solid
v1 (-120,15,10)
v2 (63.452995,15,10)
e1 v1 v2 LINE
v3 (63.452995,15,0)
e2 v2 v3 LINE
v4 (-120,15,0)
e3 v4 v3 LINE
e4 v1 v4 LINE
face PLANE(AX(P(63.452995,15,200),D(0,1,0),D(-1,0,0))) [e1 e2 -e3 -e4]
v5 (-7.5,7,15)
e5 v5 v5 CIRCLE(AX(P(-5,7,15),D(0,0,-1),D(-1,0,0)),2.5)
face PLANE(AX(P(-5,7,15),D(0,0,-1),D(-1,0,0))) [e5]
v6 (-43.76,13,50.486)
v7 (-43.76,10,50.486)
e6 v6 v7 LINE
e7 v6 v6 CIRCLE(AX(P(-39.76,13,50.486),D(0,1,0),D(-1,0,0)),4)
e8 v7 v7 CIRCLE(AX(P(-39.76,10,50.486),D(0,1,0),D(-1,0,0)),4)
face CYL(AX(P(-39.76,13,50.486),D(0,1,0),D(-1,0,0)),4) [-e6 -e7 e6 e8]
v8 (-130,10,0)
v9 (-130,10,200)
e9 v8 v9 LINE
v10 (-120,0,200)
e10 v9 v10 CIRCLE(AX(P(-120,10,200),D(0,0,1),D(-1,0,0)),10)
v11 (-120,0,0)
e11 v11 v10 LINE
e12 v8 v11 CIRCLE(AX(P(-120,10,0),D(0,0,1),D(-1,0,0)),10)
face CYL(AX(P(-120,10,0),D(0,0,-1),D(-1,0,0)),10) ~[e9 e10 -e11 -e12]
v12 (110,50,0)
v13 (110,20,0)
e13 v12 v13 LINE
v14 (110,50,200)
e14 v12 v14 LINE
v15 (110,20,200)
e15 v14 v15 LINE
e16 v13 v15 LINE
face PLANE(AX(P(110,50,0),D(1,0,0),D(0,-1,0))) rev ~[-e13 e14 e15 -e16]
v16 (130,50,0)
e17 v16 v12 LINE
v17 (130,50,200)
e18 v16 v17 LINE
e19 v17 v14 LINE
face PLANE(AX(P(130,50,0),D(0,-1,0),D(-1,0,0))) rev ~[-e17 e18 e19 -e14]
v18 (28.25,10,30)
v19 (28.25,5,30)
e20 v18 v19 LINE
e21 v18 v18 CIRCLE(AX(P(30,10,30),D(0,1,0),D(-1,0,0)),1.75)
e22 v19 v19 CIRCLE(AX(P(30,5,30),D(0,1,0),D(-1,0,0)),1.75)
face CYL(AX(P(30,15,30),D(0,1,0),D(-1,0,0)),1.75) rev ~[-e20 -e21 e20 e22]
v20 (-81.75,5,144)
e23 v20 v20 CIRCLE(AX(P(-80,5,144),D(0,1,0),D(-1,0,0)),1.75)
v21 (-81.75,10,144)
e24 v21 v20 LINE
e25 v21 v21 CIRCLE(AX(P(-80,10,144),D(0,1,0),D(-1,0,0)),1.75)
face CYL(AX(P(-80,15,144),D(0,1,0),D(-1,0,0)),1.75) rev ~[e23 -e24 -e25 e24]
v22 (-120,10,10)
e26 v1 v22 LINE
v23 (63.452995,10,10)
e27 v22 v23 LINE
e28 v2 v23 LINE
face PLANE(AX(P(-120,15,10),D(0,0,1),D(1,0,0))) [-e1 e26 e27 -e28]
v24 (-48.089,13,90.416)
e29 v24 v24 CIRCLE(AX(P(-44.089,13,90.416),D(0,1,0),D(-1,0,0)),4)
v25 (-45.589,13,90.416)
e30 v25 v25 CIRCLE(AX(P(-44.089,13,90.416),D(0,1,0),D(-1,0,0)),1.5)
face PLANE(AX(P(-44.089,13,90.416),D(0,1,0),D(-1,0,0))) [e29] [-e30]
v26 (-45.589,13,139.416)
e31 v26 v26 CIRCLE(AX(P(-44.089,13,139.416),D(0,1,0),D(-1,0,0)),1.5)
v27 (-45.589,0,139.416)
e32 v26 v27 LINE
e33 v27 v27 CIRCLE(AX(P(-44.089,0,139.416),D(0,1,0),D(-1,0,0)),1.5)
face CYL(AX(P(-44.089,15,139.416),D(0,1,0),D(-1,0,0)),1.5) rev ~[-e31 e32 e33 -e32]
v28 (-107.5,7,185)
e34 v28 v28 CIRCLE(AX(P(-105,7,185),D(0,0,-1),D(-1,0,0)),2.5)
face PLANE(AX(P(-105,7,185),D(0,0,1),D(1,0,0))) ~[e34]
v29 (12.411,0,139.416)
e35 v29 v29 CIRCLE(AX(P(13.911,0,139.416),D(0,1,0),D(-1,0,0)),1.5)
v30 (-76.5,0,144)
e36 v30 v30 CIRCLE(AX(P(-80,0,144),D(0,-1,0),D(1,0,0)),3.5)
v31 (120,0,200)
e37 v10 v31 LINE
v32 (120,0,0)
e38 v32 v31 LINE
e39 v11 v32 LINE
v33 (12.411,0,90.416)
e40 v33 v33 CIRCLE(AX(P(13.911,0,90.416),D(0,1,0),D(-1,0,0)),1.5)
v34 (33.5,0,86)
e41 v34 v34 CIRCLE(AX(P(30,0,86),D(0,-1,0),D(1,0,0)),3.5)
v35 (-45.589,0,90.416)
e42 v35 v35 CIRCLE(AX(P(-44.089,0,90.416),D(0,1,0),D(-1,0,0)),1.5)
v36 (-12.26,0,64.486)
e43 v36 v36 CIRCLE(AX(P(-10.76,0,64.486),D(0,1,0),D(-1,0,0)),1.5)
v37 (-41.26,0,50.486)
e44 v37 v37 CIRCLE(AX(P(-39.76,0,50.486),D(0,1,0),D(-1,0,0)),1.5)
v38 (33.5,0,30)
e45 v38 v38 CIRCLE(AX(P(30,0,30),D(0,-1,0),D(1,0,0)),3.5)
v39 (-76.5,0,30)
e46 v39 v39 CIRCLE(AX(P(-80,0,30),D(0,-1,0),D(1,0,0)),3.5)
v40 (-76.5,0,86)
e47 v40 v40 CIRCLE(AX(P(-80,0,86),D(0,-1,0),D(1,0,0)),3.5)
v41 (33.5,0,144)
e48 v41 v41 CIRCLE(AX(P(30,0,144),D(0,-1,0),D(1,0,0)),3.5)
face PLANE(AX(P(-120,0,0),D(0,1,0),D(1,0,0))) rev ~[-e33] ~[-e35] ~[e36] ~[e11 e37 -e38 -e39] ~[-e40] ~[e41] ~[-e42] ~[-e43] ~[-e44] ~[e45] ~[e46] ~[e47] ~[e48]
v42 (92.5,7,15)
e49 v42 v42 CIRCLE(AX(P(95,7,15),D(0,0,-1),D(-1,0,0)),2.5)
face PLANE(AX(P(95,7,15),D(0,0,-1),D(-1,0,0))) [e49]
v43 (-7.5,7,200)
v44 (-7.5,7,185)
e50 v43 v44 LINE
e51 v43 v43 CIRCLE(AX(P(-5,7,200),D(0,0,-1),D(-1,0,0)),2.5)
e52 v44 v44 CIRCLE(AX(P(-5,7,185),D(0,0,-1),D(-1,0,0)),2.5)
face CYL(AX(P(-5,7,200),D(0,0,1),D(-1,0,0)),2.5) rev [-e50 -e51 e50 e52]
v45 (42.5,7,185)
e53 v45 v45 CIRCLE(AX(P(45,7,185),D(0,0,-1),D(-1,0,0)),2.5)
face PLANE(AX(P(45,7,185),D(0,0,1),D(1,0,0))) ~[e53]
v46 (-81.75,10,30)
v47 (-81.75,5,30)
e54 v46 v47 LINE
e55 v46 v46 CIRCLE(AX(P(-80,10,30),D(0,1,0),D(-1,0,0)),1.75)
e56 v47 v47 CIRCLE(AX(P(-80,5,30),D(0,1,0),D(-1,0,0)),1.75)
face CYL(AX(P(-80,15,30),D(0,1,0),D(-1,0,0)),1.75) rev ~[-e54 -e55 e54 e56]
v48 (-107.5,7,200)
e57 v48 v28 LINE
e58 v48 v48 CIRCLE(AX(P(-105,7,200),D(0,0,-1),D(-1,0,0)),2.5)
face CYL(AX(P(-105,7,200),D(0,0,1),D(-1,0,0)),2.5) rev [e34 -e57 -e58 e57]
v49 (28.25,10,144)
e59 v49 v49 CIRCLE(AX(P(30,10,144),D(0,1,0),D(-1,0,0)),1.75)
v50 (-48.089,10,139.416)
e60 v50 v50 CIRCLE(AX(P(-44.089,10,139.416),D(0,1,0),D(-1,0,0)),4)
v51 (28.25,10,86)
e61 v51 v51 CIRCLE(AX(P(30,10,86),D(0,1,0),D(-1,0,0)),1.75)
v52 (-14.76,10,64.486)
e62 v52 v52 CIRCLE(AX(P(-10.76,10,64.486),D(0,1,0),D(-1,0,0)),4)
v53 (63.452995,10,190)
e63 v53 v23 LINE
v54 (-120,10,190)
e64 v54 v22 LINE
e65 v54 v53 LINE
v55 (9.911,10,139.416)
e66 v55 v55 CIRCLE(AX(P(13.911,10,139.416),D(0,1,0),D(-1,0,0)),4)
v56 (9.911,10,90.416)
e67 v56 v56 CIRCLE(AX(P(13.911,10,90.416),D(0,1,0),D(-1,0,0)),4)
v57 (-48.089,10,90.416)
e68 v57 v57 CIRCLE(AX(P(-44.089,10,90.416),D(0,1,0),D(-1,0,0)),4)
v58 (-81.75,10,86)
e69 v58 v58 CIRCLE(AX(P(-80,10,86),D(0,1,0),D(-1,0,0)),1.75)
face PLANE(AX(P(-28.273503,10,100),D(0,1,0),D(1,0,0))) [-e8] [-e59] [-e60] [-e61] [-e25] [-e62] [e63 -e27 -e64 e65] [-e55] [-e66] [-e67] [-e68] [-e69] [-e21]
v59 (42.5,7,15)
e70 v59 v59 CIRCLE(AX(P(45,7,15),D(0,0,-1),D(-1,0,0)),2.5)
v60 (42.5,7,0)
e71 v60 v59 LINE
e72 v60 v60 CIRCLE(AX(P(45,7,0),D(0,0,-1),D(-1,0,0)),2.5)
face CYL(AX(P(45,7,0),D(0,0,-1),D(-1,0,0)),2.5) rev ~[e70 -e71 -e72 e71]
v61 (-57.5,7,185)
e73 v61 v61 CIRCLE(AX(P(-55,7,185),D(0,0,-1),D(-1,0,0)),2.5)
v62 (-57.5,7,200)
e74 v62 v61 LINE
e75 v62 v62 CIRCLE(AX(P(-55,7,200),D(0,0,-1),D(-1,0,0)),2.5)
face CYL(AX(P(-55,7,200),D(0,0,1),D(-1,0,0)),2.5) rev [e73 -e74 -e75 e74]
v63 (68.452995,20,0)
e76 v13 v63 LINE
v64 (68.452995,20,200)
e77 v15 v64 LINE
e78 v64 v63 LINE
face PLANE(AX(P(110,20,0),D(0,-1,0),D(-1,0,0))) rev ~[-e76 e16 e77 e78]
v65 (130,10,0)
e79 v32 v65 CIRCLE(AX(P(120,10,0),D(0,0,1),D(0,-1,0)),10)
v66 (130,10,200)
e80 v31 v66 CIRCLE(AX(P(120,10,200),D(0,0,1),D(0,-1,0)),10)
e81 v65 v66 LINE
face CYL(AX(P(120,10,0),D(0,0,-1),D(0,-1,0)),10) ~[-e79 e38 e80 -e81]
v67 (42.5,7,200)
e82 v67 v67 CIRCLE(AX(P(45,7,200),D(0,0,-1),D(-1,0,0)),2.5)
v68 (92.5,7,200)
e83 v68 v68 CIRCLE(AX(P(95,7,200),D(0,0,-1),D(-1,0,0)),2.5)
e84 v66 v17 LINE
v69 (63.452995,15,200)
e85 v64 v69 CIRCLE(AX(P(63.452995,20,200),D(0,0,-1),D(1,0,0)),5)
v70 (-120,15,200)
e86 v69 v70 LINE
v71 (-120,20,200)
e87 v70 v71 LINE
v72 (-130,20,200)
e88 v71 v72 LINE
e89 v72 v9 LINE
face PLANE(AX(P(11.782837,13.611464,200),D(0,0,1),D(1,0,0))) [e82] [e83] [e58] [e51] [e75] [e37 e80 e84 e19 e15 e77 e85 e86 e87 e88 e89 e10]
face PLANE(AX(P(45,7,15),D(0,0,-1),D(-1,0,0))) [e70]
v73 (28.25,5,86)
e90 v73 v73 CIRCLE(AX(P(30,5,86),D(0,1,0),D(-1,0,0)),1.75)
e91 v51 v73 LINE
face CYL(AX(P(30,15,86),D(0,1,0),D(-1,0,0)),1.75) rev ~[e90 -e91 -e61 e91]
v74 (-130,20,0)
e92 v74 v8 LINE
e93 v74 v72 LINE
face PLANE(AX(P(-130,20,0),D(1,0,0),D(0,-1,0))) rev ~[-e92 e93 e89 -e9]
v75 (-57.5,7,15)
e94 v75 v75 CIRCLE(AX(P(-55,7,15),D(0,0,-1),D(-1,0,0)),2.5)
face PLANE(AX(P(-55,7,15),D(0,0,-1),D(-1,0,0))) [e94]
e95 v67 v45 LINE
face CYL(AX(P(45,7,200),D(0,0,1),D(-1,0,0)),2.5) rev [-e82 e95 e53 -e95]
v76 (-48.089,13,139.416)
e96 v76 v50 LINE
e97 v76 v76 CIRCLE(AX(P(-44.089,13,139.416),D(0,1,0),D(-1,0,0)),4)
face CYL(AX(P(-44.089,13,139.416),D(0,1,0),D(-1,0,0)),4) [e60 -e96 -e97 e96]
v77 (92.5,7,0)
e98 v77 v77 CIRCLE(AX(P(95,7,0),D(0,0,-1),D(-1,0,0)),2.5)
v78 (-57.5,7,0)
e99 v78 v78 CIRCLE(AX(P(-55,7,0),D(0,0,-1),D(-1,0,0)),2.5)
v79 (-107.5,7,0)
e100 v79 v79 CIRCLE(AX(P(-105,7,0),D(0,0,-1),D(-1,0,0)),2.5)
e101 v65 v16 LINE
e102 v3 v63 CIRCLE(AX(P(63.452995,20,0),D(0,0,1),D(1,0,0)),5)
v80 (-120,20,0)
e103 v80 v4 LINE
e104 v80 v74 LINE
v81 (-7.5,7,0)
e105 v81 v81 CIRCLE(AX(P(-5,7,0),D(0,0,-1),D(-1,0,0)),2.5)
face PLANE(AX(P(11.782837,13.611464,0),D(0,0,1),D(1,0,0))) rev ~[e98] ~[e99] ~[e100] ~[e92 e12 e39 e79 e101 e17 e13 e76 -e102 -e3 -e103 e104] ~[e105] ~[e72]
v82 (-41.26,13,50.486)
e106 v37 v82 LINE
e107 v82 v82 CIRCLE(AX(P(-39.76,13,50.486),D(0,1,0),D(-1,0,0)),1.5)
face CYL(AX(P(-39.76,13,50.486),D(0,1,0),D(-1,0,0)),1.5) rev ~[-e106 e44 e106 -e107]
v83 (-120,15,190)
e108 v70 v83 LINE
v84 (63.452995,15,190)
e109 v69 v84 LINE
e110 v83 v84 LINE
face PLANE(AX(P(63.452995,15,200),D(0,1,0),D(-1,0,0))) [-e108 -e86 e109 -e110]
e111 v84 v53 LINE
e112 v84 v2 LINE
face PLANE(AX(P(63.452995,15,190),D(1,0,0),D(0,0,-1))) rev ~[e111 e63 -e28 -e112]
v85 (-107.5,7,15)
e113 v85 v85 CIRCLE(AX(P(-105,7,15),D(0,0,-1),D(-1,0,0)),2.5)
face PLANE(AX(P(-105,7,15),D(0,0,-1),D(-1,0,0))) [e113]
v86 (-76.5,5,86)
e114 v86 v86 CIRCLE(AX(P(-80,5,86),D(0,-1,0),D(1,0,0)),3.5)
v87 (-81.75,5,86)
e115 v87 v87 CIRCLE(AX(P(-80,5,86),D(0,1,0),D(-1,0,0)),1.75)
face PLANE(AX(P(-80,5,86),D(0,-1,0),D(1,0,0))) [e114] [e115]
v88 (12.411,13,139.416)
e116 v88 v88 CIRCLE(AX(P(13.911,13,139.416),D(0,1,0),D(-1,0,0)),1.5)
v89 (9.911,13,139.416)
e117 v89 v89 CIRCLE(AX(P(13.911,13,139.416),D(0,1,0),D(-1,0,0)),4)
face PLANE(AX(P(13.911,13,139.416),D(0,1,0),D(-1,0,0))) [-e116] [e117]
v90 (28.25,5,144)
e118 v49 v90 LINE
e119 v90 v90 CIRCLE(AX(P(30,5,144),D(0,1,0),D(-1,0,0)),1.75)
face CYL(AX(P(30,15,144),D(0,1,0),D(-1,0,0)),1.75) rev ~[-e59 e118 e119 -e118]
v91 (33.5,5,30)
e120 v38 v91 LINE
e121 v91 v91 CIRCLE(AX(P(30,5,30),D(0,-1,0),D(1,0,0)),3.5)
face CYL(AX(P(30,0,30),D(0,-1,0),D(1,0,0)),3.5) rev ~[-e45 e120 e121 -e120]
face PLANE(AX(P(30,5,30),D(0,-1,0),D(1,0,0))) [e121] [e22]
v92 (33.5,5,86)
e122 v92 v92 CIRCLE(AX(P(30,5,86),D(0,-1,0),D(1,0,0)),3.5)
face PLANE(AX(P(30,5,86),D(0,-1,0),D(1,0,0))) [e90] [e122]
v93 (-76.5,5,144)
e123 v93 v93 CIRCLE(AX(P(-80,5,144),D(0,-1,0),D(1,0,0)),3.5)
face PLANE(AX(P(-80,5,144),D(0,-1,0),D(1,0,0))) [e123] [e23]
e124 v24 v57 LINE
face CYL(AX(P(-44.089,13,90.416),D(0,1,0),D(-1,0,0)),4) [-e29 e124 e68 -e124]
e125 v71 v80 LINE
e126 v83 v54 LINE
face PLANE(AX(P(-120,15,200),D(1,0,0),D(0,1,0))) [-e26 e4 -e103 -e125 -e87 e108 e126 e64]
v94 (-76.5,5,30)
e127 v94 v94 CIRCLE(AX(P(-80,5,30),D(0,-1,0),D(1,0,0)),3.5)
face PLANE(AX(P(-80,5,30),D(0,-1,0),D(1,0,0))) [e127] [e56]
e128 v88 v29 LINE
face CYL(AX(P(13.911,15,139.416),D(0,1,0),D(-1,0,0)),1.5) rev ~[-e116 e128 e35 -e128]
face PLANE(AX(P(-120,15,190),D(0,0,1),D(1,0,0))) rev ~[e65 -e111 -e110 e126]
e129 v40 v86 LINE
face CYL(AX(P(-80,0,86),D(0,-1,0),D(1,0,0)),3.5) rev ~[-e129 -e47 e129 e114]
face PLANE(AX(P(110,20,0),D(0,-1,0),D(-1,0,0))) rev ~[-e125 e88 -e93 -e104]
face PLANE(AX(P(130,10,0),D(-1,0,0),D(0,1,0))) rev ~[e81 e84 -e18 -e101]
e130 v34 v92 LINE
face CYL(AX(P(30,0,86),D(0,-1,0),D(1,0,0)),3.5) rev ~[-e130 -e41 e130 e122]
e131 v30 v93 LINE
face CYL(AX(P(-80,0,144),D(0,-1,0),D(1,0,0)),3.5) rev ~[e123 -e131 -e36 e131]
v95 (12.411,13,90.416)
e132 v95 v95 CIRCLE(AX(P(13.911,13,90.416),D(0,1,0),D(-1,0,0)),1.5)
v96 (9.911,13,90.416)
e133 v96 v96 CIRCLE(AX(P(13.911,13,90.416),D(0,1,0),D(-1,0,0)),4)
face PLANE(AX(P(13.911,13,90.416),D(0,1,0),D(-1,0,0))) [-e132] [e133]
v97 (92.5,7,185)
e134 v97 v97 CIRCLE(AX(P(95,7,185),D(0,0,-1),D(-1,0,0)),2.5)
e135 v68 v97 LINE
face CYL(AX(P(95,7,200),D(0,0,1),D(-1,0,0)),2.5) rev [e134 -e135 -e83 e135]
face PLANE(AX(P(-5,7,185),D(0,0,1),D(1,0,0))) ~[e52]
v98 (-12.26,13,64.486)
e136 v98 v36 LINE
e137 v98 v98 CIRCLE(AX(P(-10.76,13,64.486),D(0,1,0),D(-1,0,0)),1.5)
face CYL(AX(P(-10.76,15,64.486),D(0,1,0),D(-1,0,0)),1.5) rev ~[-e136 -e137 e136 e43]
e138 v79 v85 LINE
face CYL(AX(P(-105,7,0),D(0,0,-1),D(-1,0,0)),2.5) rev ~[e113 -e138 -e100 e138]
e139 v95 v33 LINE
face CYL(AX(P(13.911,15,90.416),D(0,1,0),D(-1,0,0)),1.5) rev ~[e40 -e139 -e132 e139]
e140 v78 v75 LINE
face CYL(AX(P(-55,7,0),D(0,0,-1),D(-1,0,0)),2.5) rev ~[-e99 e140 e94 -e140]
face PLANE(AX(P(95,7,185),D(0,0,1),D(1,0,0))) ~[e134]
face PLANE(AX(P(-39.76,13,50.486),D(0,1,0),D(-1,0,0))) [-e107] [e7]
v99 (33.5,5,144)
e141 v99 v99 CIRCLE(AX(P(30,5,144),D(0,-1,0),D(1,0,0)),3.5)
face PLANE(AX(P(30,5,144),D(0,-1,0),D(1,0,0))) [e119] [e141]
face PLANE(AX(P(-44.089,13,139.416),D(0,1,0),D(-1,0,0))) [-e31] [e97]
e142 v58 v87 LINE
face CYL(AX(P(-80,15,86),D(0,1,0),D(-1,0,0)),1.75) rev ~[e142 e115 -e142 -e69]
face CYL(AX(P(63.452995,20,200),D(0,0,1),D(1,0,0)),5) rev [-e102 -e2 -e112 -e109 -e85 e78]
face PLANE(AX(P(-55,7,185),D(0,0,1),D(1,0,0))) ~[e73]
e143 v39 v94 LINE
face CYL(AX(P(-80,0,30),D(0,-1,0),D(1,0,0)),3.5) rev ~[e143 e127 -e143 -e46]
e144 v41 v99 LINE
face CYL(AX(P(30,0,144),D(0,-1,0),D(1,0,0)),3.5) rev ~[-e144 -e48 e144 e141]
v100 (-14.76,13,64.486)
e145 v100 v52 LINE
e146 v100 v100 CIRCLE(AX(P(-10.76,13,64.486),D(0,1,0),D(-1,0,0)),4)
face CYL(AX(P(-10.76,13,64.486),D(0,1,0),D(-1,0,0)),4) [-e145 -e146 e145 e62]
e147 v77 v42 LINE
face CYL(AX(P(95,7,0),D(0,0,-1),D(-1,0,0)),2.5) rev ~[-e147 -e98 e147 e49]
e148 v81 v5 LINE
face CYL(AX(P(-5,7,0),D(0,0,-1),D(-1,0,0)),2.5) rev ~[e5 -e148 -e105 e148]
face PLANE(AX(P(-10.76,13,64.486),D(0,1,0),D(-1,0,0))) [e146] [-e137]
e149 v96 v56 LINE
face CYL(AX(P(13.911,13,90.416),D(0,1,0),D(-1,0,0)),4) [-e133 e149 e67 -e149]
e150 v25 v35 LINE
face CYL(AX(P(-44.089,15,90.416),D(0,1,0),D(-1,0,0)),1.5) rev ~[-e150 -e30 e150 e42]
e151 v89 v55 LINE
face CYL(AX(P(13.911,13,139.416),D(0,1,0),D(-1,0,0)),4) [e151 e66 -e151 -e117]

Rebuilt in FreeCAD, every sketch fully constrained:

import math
import FreeCAD as App
import Part
import Sketcher
from FreeCAD import Vector

doc = App.newDocument("Part")
body = doc.addObject("PartDesign::Body", "Body")

sketch1 = doc.addObject("Sketcher::SketchObject", "Sketch")
body.addObject(sketch1)
sketch1.AttachmentSupport = (doc.XY_Plane, [""])
sketch1.MapMode = "FlatFace"
sketch1.addGeometry(Part.LineSegment(Vector(-120, 0, 0), Vector(120, 0, 0)), False)
sketch1.addGeometry(Part.ArcOfCircle(Part.Circle(Vector(120, 10, 0), Vector(0, 0, 1), 10), math.radians(-90), math.radians(0)), False)
sketch1.addGeometry(Part.LineSegment(Vector(130, 10, 0), Vector(130, 50, 0)), False)
sketch1.addGeometry(Part.LineSegment(Vector(130, 50, 0), Vector(110, 50, 0)), False)
sketch1.addGeometry(Part.LineSegment(Vector(110, 50, 0), Vector(110, 20, 0)), False)
sketch1.addGeometry(Part.LineSegment(Vector(110, 20, 0), Vector(-130, 20, 0)), False)
sketch1.addGeometry(Part.LineSegment(Vector(-130, 20, 0), Vector(-130, 10, 0)), False)
sketch1.addGeometry(Part.ArcOfCircle(Part.Circle(Vector(-120, 10, 0), Vector(0, 0, 1), 10), math.radians(180), math.radians(270)), False)
sketch1.addConstraint(Sketcher.Constraint("Tangent", 0, 2, 1, 1))
sketch1.addConstraint(Sketcher.Constraint("Tangent", 1, 2, 2, 1))
sketch1.addConstraint(Sketcher.Constraint("Coincident", 2, 2, 3, 1))
sketch1.addConstraint(Sketcher.Constraint("Coincident", 3, 2, 4, 1))
sketch1.addConstraint(Sketcher.Constraint("Coincident", 4, 2, 5, 1))
sketch1.addConstraint(Sketcher.Constraint("Coincident", 5, 2, 6, 1))
sketch1.addConstraint(Sketcher.Constraint("Tangent", 6, 2, 7, 1))
sketch1.addConstraint(Sketcher.Constraint("Tangent", 7, 2, 0, 1))
sketch1.addConstraint(Sketcher.Constraint("Horizontal", 0))
sketch1.addConstraint(Sketcher.Constraint("Vertical", 2))
sketch1.addConstraint(Sketcher.Constraint("Horizontal", 3))
sketch1.addConstraint(Sketcher.Constraint("Vertical", 4))
sketch1.addConstraint(Sketcher.Constraint("Horizontal", 5))
sketch1.addConstraint(Sketcher.Constraint("Vertical", 6))
sketch1.addConstraint(Sketcher.Constraint("Equal", 1, 7))
sketch1.addConstraint(Sketcher.Constraint("Symmetric", 0, 2, 7, 2, -1, 1))
sketch1.addConstraint(Sketcher.Constraint("Equal", 0, 5))
sketch1.addConstraint(Sketcher.Constraint("Radius", 1, 10.0))
sketch1.addConstraint(Sketcher.Constraint("DistanceX", 0, 1, 0, 2, 240.0))
sketch1.addConstraint(Sketcher.Constraint("DistanceY", 2, 1, 2, 2, 40.0))
sketch1.addConstraint(Sketcher.Constraint("DistanceY", 4, 2, 4, 1, 30.0))
pad1 = doc.addObject("PartDesign::Pad", "Pad")
body.addObject(pad1)
pad1.Profile = sketch1
pad1.Length = 200

sketch2 = doc.addObject("Sketcher::SketchObject", "Sketch001")
body.addObject(sketch2)
sketch2.AttachmentSupport = (doc.XY_Plane, [""])
sketch2.MapMode = "FlatFace"
sketch2.AttachmentOffset = App.Placement(Vector(0, 0, 200), App.Rotation())
sketch2.addGeometry(Part.LineSegment(Vector(68.452995, 20, 0), Vector(-120, 20, 0)), False)
sketch2.addGeometry(Part.LineSegment(Vector(-120, 20, 0), Vector(-120, 15, 0)), False)
sketch2.addGeometry(Part.LineSegment(Vector(-120, 15, 0), Vector(63.452995, 15, 0)), False)
sketch2.addGeometry(Part.ArcOfCircle(Part.Circle(Vector(63.452995, 20, 0), Vector(0, 0, 1), 5), math.radians(-90), math.radians(0)), False)
sketch2.addConstraint(Sketcher.Constraint("Coincident", 0, 2, 1, 1))
sketch2.addConstraint(Sketcher.Constraint("Coincident", 1, 2, 2, 1))
sketch2.addConstraint(Sketcher.Constraint("Tangent", 2, 2, 3, 1))
sketch2.addConstraint(Sketcher.Constraint("Coincident", 3, 2, 0, 1))
sketch2.addConstraint(Sketcher.Constraint("Horizontal", 0))
sketch2.addConstraint(Sketcher.Constraint("Vertical", 1))
sketch2.addConstraint(Sketcher.Constraint("Horizontal", 2))
sketch2.addConstraint(Sketcher.Constraint("Horizontal", 3, 3, 0, 2))
sketch2.addConstraint(Sketcher.Constraint("Radius", 3, 5.0))
sketch2.addConstraint(Sketcher.Constraint("DistanceY", -1, 1, 3, 3, 20.0))
sketch2.addConstraint(Sketcher.Constraint("DistanceX", 0, 2, -1, 1, 120.0))
sketch2.addConstraint(Sketcher.Constraint("DistanceX", 0, 2, 0, 1, 188.452995))
pocket1 = doc.addObject("PartDesign::Pocket", "Pocket")
body.addObject(pocket1)
pocket1.Profile = sketch2
pocket1.Type = "UpToFirst"

sketch3 = doc.addObject("Sketcher::SketchObject", "Sketch002")
body.addObject(sketch3)
sketch3.AttachmentSupport = (doc.XZ_Plane, [""])
sketch3.MapMode = "FlatFace"
sketch3.AttachmentOffset = App.Placement(Vector(0, 0, -15), App.Rotation())
sketch3.addGeometry(Part.Circle(Vector(30, 30, 0), Vector(0, 0, 1), 1.75), False)
sketch3.addConstraint(Sketcher.Constraint("Diameter", 0, 3.5))
sketch3.addConstraint(Sketcher.Constraint("DistanceX", -1, 1, 0, 3, 30.0))
sketch3.addConstraint(Sketcher.Constraint("DistanceY", -1, 1, 0, 3, 30.0))
pocket2 = doc.addObject("PartDesign::Pocket", "Pocket001")
body.addObject(pocket2)
pocket2.Profile = sketch3
pocket2.Type = "UpToFirst"
pocket2.Reversed = True

sketch4 = doc.addObject("Sketcher::SketchObject", "Sketch003")
body.addObject(sketch4)
sketch4.AttachmentSupport = (doc.XZ_Plane, [""])
sketch4.MapMode = "FlatFace"
sketch4.AttachmentOffset = App.Placement(Vector(0, 0, -15), App.Rotation())
sketch4.addGeometry(Part.Circle(Vector(30, 86, 0), Vector(0, 0, 1), 1.75), False)
sketch4.addConstraint(Sketcher.Constraint("Diameter", 0, 3.5))
sketch4.addConstraint(Sketcher.Constraint("DistanceX", -1, 1, 0, 3, 30.0))
sketch4.addConstraint(Sketcher.Constraint("DistanceY", -1, 1, 0, 3, 86.0))
pocket3 = doc.addObject("PartDesign::Pocket", "Pocket002")
body.addObject(pocket3)
pocket3.Profile = sketch4
pocket3.Type = "UpToFirst"
pocket3.Reversed = True

sketch5 = doc.addObject("Sketcher::SketchObject", "Sketch004")
body.addObject(sketch5)
sketch5.AttachmentSupport = (doc.XZ_Plane, [""])
sketch5.MapMode = "FlatFace"
sketch5.AttachmentOffset = App.Placement(Vector(0, 0, -15), App.Rotation())
sketch5.addGeometry(Part.Circle(Vector(30, 144, 0), Vector(0, 0, 1), 1.75), False)
sketch5.addConstraint(Sketcher.Constraint("Diameter", 0, 3.5))
sketch5.addConstraint(Sketcher.Constraint("DistanceX", -1, 1, 0, 3, 30.0))
sketch5.addConstraint(Sketcher.Constraint("DistanceY", -1, 1, 0, 3, 144.0))
pocket4 = doc.addObject("PartDesign::Pocket", "Pocket003")
body.addObject(pocket4)
pocket4.Profile = sketch5
pocket4.Type = "UpToFirst"
pocket4.Reversed = True

sketch6 = doc.addObject("Sketcher::SketchObject", "Sketch005")
body.addObject(sketch6)
sketch6.AttachmentSupport = (doc.XZ_Plane, [""])
sketch6.MapMode = "FlatFace"
sketch6.AttachmentOffset = App.Placement(Vector(0, 0, -15), App.Rotation())
sketch6.addGeometry(Part.Circle(Vector(-80, 144, 0), Vector(0, 0, 1), 1.75), False)
sketch6.addConstraint(Sketcher.Constraint("Diameter", 0, 3.5))
sketch6.addConstraint(Sketcher.Constraint("DistanceX", 0, 3, -1, 1, 80.0))
sketch6.addConstraint(Sketcher.Constraint("DistanceY", -1, 1, 0, 3, 144.0))
pocket5 = doc.addObject("PartDesign::Pocket", "Pocket004")
body.addObject(pocket5)
pocket5.Profile = sketch6
pocket5.Type = "UpToFirst"
pocket5.Reversed = True

sketch7 = doc.addObject("Sketcher::SketchObject", "Sketch006")
body.addObject(sketch7)
sketch7.AttachmentSupport = (doc.XZ_Plane, [""])
sketch7.MapMode = "FlatFace"
sketch7.AttachmentOffset = App.Placement(Vector(0, 0, -15), App.Rotation())
sketch7.addGeometry(Part.Circle(Vector(-80, 86, 0), Vector(0, 0, 1), 1.75), False)
sketch7.addConstraint(Sketcher.Constraint("Diameter", 0, 3.5))
sketch7.addConstraint(Sketcher.Constraint("DistanceX", 0, 3, -1, 1, 80.0))
sketch7.addConstraint(Sketcher.Constraint("DistanceY", -1, 1, 0, 3, 86.0))
pocket6 = doc.addObject("PartDesign::Pocket", "Pocket005")
body.addObject(pocket6)
pocket6.Profile = sketch7
pocket6.Type = "UpToFirst"
pocket6.Reversed = True

sketch8 = doc.addObject("Sketcher::SketchObject", "Sketch007")
body.addObject(sketch8)
sketch8.AttachmentSupport = (doc.XZ_Plane, [""])
sketch8.MapMode = "FlatFace"
sketch8.AttachmentOffset = App.Placement(Vector(0, 0, -15), App.Rotation())
sketch8.addGeometry(Part.Circle(Vector(-80, 30, 0), Vector(0, 0, 1), 1.75), False)
sketch8.addConstraint(Sketcher.Constraint("Diameter", 0, 3.5))
sketch8.addConstraint(Sketcher.Constraint("DistanceX", 0, 3, -1, 1, 80.0))
sketch8.addConstraint(Sketcher.Constraint("DistanceY", -1, 1, 0, 3, 30.0))
pocket7 = doc.addObject("PartDesign::Pocket", "Pocket006")
body.addObject(pocket7)
pocket7.Profile = sketch8
pocket7.Type = "UpToFirst"
pocket7.Reversed = True

sketch9 = doc.addObject("Sketcher::SketchObject", "Sketch008")
body.addObject(sketch9)
sketch9.AttachmentSupport = (doc.XZ_Plane, [""])
sketch9.MapMode = "FlatFace"
sketch9.AttachmentOffset = App.Placement(Vector(0, 0, -15), App.Rotation())
sketch9.addGeometry(Part.Circle(Vector(-10.76, 64.486, 0), Vector(0, 0, 1), 1.5), False)
sketch9.addConstraint(Sketcher.Constraint("Diameter", 0, 3.0))
sketch9.addConstraint(Sketcher.Constraint("DistanceX", 0, 3, -1, 1, 10.76))
sketch9.addConstraint(Sketcher.Constraint("DistanceY", -1, 1, 0, 3, 64.486))
pocket8 = doc.addObject("PartDesign::Pocket", "Pocket007")
body.addObject(pocket8)
pocket8.Profile = sketch9
pocket8.Type = "UpToFirst"
pocket8.Reversed = True

sketch10 = doc.addObject("Sketcher::SketchObject", "Sketch009")
body.addObject(sketch10)
sketch10.AttachmentSupport = (doc.XZ_Plane, [""])
sketch10.MapMode = "FlatFace"
sketch10.AttachmentOffset = App.Placement(Vector(0, 0, -15), App.Rotation())
sketch10.addGeometry(Part.Circle(Vector(-39.76, 50.486, 0), Vector(0, 0, 1), 1.5), False)
sketch10.addConstraint(Sketcher.Constraint("Diameter", 0, 3.0))
sketch10.addConstraint(Sketcher.Constraint("DistanceX", 0, 3, -1, 1, 39.76))
sketch10.addConstraint(Sketcher.Constraint("DistanceY", -1, 1, 0, 3, 50.486))
pocket9 = doc.addObject("PartDesign::Pocket", "Pocket008")
body.addObject(pocket9)
pocket9.Profile = sketch10
pocket9.Type = "UpToFirst"
pocket9.Reversed = True

sketch11 = doc.addObject("Sketcher::SketchObject", "Sketch010")
body.addObject(sketch11)
sketch11.AttachmentSupport = (doc.XZ_Plane, [""])
sketch11.MapMode = "FlatFace"
sketch11.AttachmentOffset = App.Placement(Vector(0, 0, -15), App.Rotation())
sketch11.addGeometry(Part.Circle(Vector(-44.089, 90.416, 0), Vector(0, 0, 1), 1.5), False)
sketch11.addConstraint(Sketcher.Constraint("Diameter", 0, 3.0))
sketch11.addConstraint(Sketcher.Constraint("DistanceX", 0, 3, -1, 1, 44.089))
sketch11.addConstraint(Sketcher.Constraint("DistanceY", -1, 1, 0, 3, 90.416))
pocket10 = doc.addObject("PartDesign::Pocket", "Pocket009")
body.addObject(pocket10)
pocket10.Profile = sketch11
pocket10.Type = "UpToFirst"
pocket10.Reversed = True

sketch12 = doc.addObject("Sketcher::SketchObject", "Sketch011")
body.addObject(sketch12)
sketch12.AttachmentSupport = (doc.XZ_Plane, [""])
sketch12.MapMode = "FlatFace"
sketch12.AttachmentOffset = App.Placement(Vector(0, 0, -15), App.Rotation())
sketch12.addGeometry(Part.Circle(Vector(13.911, 90.416, 0), Vector(0, 0, 1), 1.5), False)
sketch12.addConstraint(Sketcher.Constraint("Diameter", 0, 3.0))
sketch12.addConstraint(Sketcher.Constraint("DistanceX", -1, 1, 0, 3, 13.911))
sketch12.addConstraint(Sketcher.Constraint("DistanceY", -1, 1, 0, 3, 90.416))
pocket11 = doc.addObject("PartDesign::Pocket", "Pocket010")
body.addObject(pocket11)
pocket11.Profile = sketch12
pocket11.Type = "UpToFirst"
pocket11.Reversed = True

sketch13 = doc.addObject("Sketcher::SketchObject", "Sketch012")
body.addObject(sketch13)
sketch13.AttachmentSupport = (doc.XZ_Plane, [""])
sketch13.MapMode = "FlatFace"
sketch13.AttachmentOffset = App.Placement(Vector(0, 0, -15), App.Rotation())
sketch13.addGeometry(Part.Circle(Vector(13.911, 139.416, 0), Vector(0, 0, 1), 1.5), False)
sketch13.addConstraint(Sketcher.Constraint("Diameter", 0, 3.0))
sketch13.addConstraint(Sketcher.Constraint("DistanceX", -1, 1, 0, 3, 13.911))
sketch13.addConstraint(Sketcher.Constraint("DistanceY", -1, 1, 0, 3, 139.416))
pocket12 = doc.addObject("PartDesign::Pocket", "Pocket011")
body.addObject(pocket12)
pocket12.Profile = sketch13
pocket12.Type = "UpToFirst"
pocket12.Reversed = True

sketch14 = doc.addObject("Sketcher::SketchObject", "Sketch013")
body.addObject(sketch14)
sketch14.AttachmentSupport = (doc.XZ_Plane, [""])
sketch14.MapMode = "FlatFace"
sketch14.AttachmentOffset = App.Placement(Vector(0, 0, -15), App.Rotation())
sketch14.addGeometry(Part.Circle(Vector(-44.089, 139.416, 0), Vector(0, 0, 1), 1.5), False)
sketch14.addConstraint(Sketcher.Constraint("Diameter", 0, 3.0))
sketch14.addConstraint(Sketcher.Constraint("DistanceX", 0, 3, -1, 1, 44.089))
sketch14.addConstraint(Sketcher.Constraint("DistanceY", -1, 1, 0, 3, 139.416))
pocket13 = doc.addObject("PartDesign::Pocket", "Pocket012")
body.addObject(pocket13)
pocket13.Profile = sketch14
pocket13.Type = "UpToFirst"
pocket13.Reversed = True

sketch15 = doc.addObject("Sketcher::SketchObject", "Sketch014")
body.addObject(sketch15)
sketch15.AttachmentSupport = (doc.XZ_Plane, [""])
sketch15.MapMode = "FlatFace"
sketch15.AttachmentOffset = App.Placement(Vector(0, 0, -15), App.Rotation())
sketch15.addGeometry(Part.LineSegment(Vector(-120, 10, 0), Vector(-120, 190, 0)), False)
sketch15.addGeometry(Part.LineSegment(Vector(-120, 190, 0), Vector(63.452995, 190, 0)), False)
sketch15.addGeometry(Part.LineSegment(Vector(63.452995, 190, 0), Vector(63.452995, 10, 0)), False)
sketch15.addGeometry(Part.LineSegment(Vector(63.452995, 10, 0), Vector(-120, 10, 0)), False)
sketch15.addConstraint(Sketcher.Constraint("Coincident", 0, 2, 1, 1))
sketch15.addConstraint(Sketcher.Constraint("Coincident", 1, 2, 2, 1))
sketch15.addConstraint(Sketcher.Constraint("Coincident", 2, 2, 3, 1))
sketch15.addConstraint(Sketcher.Constraint("Coincident", 3, 2, 0, 1))
sketch15.addConstraint(Sketcher.Constraint("Vertical", 0))
sketch15.addConstraint(Sketcher.Constraint("Horizontal", 1))
sketch15.addConstraint(Sketcher.Constraint("Vertical", 2))
sketch15.addConstraint(Sketcher.Constraint("Horizontal", 3))
sketch15.addConstraint(Sketcher.Constraint("DistanceY", 0, 1, 0, 2, 180.0))
sketch15.addConstraint(Sketcher.Constraint("DistanceX", 0, 2, -1, 1, 120.0))
sketch15.addConstraint(Sketcher.Constraint("DistanceY", -1, 1, 0, 2, 190.0))
sketch15.addConstraint(Sketcher.Constraint("DistanceX", 1, 1, 1, 2, 183.452995))
pocket14 = doc.addObject("PartDesign::Pocket", "Pocket013")
body.addObject(pocket14)
pocket14.Profile = sketch15
pocket14.Length = 5
pocket14.Reversed = True

sketch16 = doc.addObject("Sketcher::SketchObject", "Sketch015")
body.addObject(sketch16)
sketch16.AttachmentSupport = (doc.XZ_Plane, [""])
sketch16.MapMode = "FlatFace"
sketch16.AttachmentOffset = App.Placement(Vector(0, 0, -13), App.Rotation())
sketch16.addGeometry(Part.Circle(Vector(-39.76, 50.486, 0), Vector(0, 0, 1), 4), False)
sketch16.addGeometry(Part.Circle(Vector(-39.76, 50.486, 0), Vector(0, 0, 1), 1.5), False)
sketch16.addGeometry(Part.Circle(Vector(-10.76, 64.486, 0), Vector(0, 0, 1), 4), False)
sketch16.addGeometry(Part.Circle(Vector(-10.76, 64.486, 0), Vector(0, 0, 1), 1.5), False)
sketch16.addGeometry(Part.Circle(Vector(13.911, 90.416, 0), Vector(0, 0, 1), 4), False)
sketch16.addGeometry(Part.Circle(Vector(13.911, 90.416, 0), Vector(0, 0, 1), 1.5), False)
sketch16.addGeometry(Part.Circle(Vector(13.911, 139.416, 0), Vector(0, 0, 1), 4), False)
sketch16.addGeometry(Part.Circle(Vector(13.911, 139.416, 0), Vector(0, 0, 1), 1.5), False)
sketch16.addGeometry(Part.Circle(Vector(-44.089, 139.416, 0), Vector(0, 0, 1), 4), False)
sketch16.addGeometry(Part.Circle(Vector(-44.089, 139.416, 0), Vector(0, 0, 1), 1.5), False)
sketch16.addGeometry(Part.Circle(Vector(-44.089, 90.416, 0), Vector(0, 0, 1), 4), False)
sketch16.addGeometry(Part.Circle(Vector(-44.089, 90.416, 0), Vector(0, 0, 1), 1.5), False)
sketch16.addConstraint(Sketcher.Constraint("Coincident", 1, 3, 0, 3))
sketch16.addConstraint(Sketcher.Constraint("Coincident", 3, 3, 2, 3))
sketch16.addConstraint(Sketcher.Constraint("Coincident", 5, 3, 4, 3))
sketch16.addConstraint(Sketcher.Constraint("Coincident", 7, 3, 6, 3))
sketch16.addConstraint(Sketcher.Constraint("Coincident", 9, 3, 8, 3))
sketch16.addConstraint(Sketcher.Constraint("Coincident", 11, 3, 10, 3))
sketch16.addConstraint(Sketcher.Constraint("Equal", 0, 2))
sketch16.addConstraint(Sketcher.Constraint("Equal", 1, 3))
sketch16.addConstraint(Sketcher.Constraint("Equal", 2, 4))
sketch16.addConstraint(Sketcher.Constraint("Equal", 3, 5))
sketch16.addConstraint(Sketcher.Constraint("Equal", 4, 6))
sketch16.addConstraint(Sketcher.Constraint("Equal", 5, 7))
sketch16.addConstraint(Sketcher.Constraint("Equal", 6, 8))
sketch16.addConstraint(Sketcher.Constraint("Equal", 7, 9))
sketch16.addConstraint(Sketcher.Constraint("Equal", 8, 10))
sketch16.addConstraint(Sketcher.Constraint("Equal", 9, 11))
sketch16.addConstraint(Sketcher.Constraint("Horizontal", 7, 3, 8, 3))
sketch16.addConstraint(Sketcher.Constraint("Horizontal", 5, 3, 10, 3))
sketch16.addConstraint(Sketcher.Constraint("Vertical", 5, 3, 6, 3))
sketch16.addConstraint(Sketcher.Constraint("Vertical", 9, 3, 10, 3))
sketch16.addConstraint(Sketcher.Constraint("Diameter", 0, 8.0))
sketch16.addConstraint(Sketcher.Constraint("Diameter", 1, 3.0))
sketch16.addConstraint(Sketcher.Constraint("DistanceX", 0, 3, 2, 3, 29.0))
sketch16.addConstraint(Sketcher.Constraint("DistanceY", 0, 3, 2, 3, 14.0))
sketch16.addConstraint(Sketcher.Constraint("DistanceY", 4, 3, 6, 3, 49.0))
sketch16.addConstraint(Sketcher.Constraint("DistanceX", 8, 3, 6, 3, 58.0))
sketch16.addConstraint(Sketcher.Constraint("DistanceX", 0, 3, -1, 1, 39.76))
sketch16.addConstraint(Sketcher.Constraint("DistanceY", 2, 3, 4, 3, 25.93))
sketch16.addConstraint(Sketcher.Constraint("DistanceY", -1, 1, 0, 3, 50.486))
sketch16.addConstraint(Sketcher.Constraint("DistanceX", -1, 1, 4, 3, 13.911))
pad2 = doc.addObject("PartDesign::Pad", "Pad001")
body.addObject(pad2)
pad2.Profile = sketch16
pad2.Length = 3

sketch17 = doc.addObject("Sketcher::SketchObject", "Sketch016")
body.addObject(sketch17)
sketch17.AttachmentSupport = (doc.XY_Plane, [""])
sketch17.MapMode = "FlatFace"
sketch17.addGeometry(Part.Circle(Vector(-105, 7, 0), Vector(0, 0, 1), 2.5), False)
sketch17.addGeometry(Part.Circle(Vector(-55, 7, 0), Vector(0, 0, 1), 2.5), False)
sketch17.addGeometry(Part.Circle(Vector(-5, 7, 0), Vector(0, 0, 1), 2.5), False)
sketch17.addGeometry(Part.Circle(Vector(45, 7, 0), Vector(0, 0, 1), 2.5), False)
sketch17.addGeometry(Part.Circle(Vector(95, 7, 0), Vector(0, 0, 1), 2.5), False)
sketch17.addConstraint(Sketcher.Constraint("Equal", 0, 1))
sketch17.addConstraint(Sketcher.Constraint("Equal", 1, 2))
sketch17.addConstraint(Sketcher.Constraint("Equal", 2, 3))
sketch17.addConstraint(Sketcher.Constraint("Equal", 3, 4))
sketch17.addConstraint(Sketcher.Constraint("Horizontal", 0, 3, 1, 3))
sketch17.addConstraint(Sketcher.Constraint("Horizontal", 1, 3, 2, 3))
sketch17.addConstraint(Sketcher.Constraint("Horizontal", 2, 3, 3, 3))
sketch17.addConstraint(Sketcher.Constraint("Horizontal", 3, 3, 4, 3))
sketch17.addConstraint(Sketcher.Constraint("Diameter", 0, 5.0))
sketch17.addConstraint(Sketcher.Constraint("DistanceX", 0, 3, -1, 1, 105.0))
sketch17.addConstraint(Sketcher.Constraint("DistanceY", -1, 1, 0, 3, 7.0))
sketch17.addConstraint(Sketcher.Constraint("DistanceX", 1, 3, -1, 1, 55.0))
sketch17.addConstraint(Sketcher.Constraint("DistanceX", 2, 3, -1, 1, 5.0))
sketch17.addConstraint(Sketcher.Constraint("DistanceX", -1, 1, 3, 3, 45.0))
sketch17.addConstraint(Sketcher.Constraint("DistanceX", -1, 1, 4, 3, 95.0))
pocket15 = doc.addObject("PartDesign::Pocket", "Pocket014")
body.addObject(pocket15)
pocket15.Profile = sketch17
pocket15.Length = 15
pocket15.Reversed = True
doc.recompute()

datumplane = doc.addObject("PartDesign::Plane", "DatumPlane")
body.addObject(datumplane)
datumplane.AttachmentSupport = (doc.XY_Plane, [""])
datumplane.MapMode = "FlatFace"
datumplane.AttachmentOffset = App.Placement(Vector(0, 0, 100), App.Rotation())
mirrored = doc.addObject("PartDesign::Mirrored", "Mirrored")
body.addObject(mirrored)
mirrored.Originals = [pocket15]
mirrored.MirrorPlane = (datumplane, [""])
body.Tip = mirrored

sketch18 = doc.addObject("Sketcher::SketchObject", "Sketch017")
body.addObject(sketch18)
sketch18.AttachmentSupport = (doc.XZ_Plane, [""])
sketch18.MapMode = "FlatFace"
sketch18.addGeometry(Part.Circle(Vector(-80, 144, 0), Vector(0, 0, 1), 3.5), False)
sketch18.addGeometry(Part.Circle(Vector(30, 144, 0), Vector(0, 0, 1), 3.5), False)
sketch18.addGeometry(Part.Circle(Vector(30, 86, 0), Vector(0, 0, 1), 3.5), False)
sketch18.addGeometry(Part.Circle(Vector(30, 30, 0), Vector(0, 0, 1), 3.5), False)
sketch18.addGeometry(Part.Circle(Vector(-80, 30, 0), Vector(0, 0, 1), 3.5), False)
sketch18.addGeometry(Part.Circle(Vector(-80, 86, 0), Vector(0, 0, 1), 3.5), False)
sketch18.addConstraint(Sketcher.Constraint("Equal", 0, 1))
sketch18.addConstraint(Sketcher.Constraint("Equal", 1, 2))
sketch18.addConstraint(Sketcher.Constraint("Equal", 2, 3))
sketch18.addConstraint(Sketcher.Constraint("Equal", 3, 4))
sketch18.addConstraint(Sketcher.Constraint("Equal", 4, 5))
sketch18.addConstraint(Sketcher.Constraint("Horizontal", 0, 3, 1, 3))
sketch18.addConstraint(Sketcher.Constraint("Horizontal", 3, 3, 4, 3))
sketch18.addConstraint(Sketcher.Constraint("Horizontal", 2, 3, 5, 3))
sketch18.addConstraint(Sketcher.Constraint("Vertical", 1, 3, 2, 3))
sketch18.addConstraint(Sketcher.Constraint("Vertical", 2, 3, 3, 3))
sketch18.addConstraint(Sketcher.Constraint("Vertical", 0, 3, 4, 3))
sketch18.addConstraint(Sketcher.Constraint("Vertical", 4, 3, 5, 3))
sketch18.addConstraint(Sketcher.Constraint("Diameter", 0, 7.0))
sketch18.addConstraint(Sketcher.Constraint("DistanceX", 0, 3, -1, 1, 80.0))
sketch18.addConstraint(Sketcher.Constraint("DistanceY", -1, 1, 0, 3, 144.0))
sketch18.addConstraint(Sketcher.Constraint("DistanceX", -1, 1, 1, 3, 30.0))
sketch18.addConstraint(Sketcher.Constraint("DistanceY", -1, 1, 2, 3, 86.0))
sketch18.addConstraint(Sketcher.Constraint("DistanceY", -1, 1, 3, 3, 30.0))
pocket16 = doc.addObject("PartDesign::Pocket", "Pocket015")
body.addObject(pocket16)
pocket16.Profile = sketch18
pocket16.Length = 5

doc.recompute()
